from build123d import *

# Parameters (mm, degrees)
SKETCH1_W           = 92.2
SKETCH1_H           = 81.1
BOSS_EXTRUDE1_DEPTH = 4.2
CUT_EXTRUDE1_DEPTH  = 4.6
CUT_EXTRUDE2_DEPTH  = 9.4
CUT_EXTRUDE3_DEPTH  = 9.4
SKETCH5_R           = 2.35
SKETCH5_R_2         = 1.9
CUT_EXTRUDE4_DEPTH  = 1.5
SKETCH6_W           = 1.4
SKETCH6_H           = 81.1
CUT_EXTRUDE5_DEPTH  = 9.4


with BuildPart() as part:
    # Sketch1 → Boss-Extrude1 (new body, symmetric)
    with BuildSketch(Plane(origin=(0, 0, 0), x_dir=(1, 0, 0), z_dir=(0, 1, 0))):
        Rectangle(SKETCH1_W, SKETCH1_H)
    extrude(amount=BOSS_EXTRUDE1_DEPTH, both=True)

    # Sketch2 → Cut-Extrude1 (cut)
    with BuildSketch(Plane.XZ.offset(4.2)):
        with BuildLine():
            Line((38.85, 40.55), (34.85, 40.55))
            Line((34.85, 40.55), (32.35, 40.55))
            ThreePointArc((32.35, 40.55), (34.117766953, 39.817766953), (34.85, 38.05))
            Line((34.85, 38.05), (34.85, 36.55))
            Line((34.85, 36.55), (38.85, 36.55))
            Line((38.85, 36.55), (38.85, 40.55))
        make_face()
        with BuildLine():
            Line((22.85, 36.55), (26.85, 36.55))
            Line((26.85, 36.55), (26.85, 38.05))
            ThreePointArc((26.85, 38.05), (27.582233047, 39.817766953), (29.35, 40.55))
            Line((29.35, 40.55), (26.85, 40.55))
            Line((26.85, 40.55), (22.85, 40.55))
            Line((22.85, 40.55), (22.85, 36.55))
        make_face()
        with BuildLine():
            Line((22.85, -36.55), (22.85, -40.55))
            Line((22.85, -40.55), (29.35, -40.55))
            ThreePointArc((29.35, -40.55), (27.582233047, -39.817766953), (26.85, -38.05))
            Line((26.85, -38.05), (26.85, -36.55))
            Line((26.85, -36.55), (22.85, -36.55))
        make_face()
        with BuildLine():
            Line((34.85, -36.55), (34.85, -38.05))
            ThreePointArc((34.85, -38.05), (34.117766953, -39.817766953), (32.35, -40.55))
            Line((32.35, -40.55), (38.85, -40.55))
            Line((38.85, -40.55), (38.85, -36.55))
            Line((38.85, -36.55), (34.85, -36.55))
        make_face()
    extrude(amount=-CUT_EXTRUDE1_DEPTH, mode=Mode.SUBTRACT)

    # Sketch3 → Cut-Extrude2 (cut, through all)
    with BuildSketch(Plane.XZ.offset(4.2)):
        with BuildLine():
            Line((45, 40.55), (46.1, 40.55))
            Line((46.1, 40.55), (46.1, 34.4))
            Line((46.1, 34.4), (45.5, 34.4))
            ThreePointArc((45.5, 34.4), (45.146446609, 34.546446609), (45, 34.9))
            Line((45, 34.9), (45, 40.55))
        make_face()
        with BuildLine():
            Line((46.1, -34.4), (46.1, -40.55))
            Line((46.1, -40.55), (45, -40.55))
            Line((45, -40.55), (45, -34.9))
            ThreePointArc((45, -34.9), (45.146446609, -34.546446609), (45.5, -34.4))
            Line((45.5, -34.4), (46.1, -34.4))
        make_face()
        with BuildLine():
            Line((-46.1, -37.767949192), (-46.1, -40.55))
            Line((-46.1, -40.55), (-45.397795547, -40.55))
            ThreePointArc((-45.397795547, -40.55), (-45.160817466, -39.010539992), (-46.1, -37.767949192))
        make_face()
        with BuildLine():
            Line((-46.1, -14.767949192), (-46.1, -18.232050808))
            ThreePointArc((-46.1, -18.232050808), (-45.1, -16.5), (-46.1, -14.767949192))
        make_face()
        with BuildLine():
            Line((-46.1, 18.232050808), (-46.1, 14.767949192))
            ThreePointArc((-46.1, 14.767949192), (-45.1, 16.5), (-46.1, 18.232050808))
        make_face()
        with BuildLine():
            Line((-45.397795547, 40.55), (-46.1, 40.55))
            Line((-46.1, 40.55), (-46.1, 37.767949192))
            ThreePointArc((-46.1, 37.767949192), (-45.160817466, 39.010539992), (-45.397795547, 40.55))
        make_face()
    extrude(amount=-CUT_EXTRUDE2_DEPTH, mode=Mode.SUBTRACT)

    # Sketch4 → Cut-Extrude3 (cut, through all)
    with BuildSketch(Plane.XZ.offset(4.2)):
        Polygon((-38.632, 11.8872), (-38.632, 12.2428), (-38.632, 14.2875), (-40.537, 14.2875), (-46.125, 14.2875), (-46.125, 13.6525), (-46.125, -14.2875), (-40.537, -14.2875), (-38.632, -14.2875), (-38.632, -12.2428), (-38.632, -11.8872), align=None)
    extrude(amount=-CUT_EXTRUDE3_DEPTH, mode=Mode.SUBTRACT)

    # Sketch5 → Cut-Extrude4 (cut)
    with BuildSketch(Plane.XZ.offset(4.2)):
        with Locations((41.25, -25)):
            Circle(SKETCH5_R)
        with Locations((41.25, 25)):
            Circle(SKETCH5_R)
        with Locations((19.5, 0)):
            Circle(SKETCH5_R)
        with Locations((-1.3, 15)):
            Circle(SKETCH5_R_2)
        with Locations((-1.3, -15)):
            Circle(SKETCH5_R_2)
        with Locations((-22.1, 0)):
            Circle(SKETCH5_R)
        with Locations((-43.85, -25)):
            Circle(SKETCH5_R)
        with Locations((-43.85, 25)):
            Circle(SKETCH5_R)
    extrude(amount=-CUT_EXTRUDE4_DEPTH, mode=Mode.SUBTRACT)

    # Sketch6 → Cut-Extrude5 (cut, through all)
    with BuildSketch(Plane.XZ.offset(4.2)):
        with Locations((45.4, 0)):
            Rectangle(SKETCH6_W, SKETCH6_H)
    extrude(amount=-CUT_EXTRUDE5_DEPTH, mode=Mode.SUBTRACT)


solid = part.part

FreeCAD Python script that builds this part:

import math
import FreeCAD as App
import Part
import Sketcher

V = App.Vector

doc = App.newDocument("Part")
body = doc.addObject("PartDesign::Body", "Body")

# Sketch on XZ plane
sketch1 = body.newObject("Sketcher::SketchObject", "Sketch")
sketch1.AttachmentSupport = (doc.getObject("XZ_Plane"), [""])
sketch1.MapMode = "FlatFace"
sketch1.addGeometry(Part.LineSegment(V(-46.1, -40.55, 0), V(-46.1, 40.55, 0)), False)
sketch1.addGeometry(Part.LineSegment(V(-46.1, 40.55, 0), V(46.1, 40.55, 0)), False)
sketch1.addGeometry(Part.LineSegment(V(46.1, 40.55, 0), V(46.1, -40.55, 0)), False)
sketch1.addGeometry(Part.LineSegment(V(46.1, -40.55, 0), V(-46.1, -40.55, 0)), False)
sketch1.addConstraint(Sketcher.Constraint("Coincident", 0, 2, 1, 1))
sketch1.addConstraint(Sketcher.Constraint("Coincident", 1, 2, 2, 1))
sketch1.addConstraint(Sketcher.Constraint("Coincident", 2, 2, 3, 1))
sketch1.addConstraint(Sketcher.Constraint("Coincident", 3, 2, 0, 1))
sketch1.addConstraint(Sketcher.Constraint("Vertical", 0))
sketch1.addConstraint(Sketcher.Constraint("Horizontal", 1))
sketch1.addConstraint(Sketcher.Constraint("Vertical", 2))
sketch1.addConstraint(Sketcher.Constraint("Horizontal", 3))
sketch1.addConstraint(Sketcher.Constraint("Symmetric", 0, 2, 2, 2, -1, 1))
sketch1.addConstraint(Sketcher.Constraint("DistanceX", 1, 1, 1, 2, 92.2))
sketch1.addConstraint(Sketcher.Constraint("DistanceY", 0, 1, 0, 2, 81.1))
pad1 = body.newObject("PartDesign::Pad", "Pad")
pad1.Profile = sketch1
pad1.Length = 8.4
pad1.Midplane = True

# Sketch on XZ plane
sketch2 = body.newObject("Sketcher::SketchObject", "Sketch001")
sketch2.AttachmentSupport = (doc.getObject("XZ_Plane"), [""])
sketch2.MapMode = "FlatFace"
sketch2.AttachmentOffset = App.Placement(V(0, 0, 4.2), App.Rotation())
sketch2.addGeometry(Part.LineSegment(V(38.85, 40.55, 0), V(32.35, 40.55, 0)), False)
sketch2.addGeometry(Part.ArcOfCircle(Part.Circle(V(32.35, 38.05, 0), V(0, 0, 1), 2.5), math.radians(0), math.radians(90)), False)
sketch2.addGeometry(Part.LineSegment(V(34.85, 38.05, 0), V(34.85, 36.55, 0)), False)
sketch2.addGeometry(Part.LineSegment(V(34.85, 36.55, 0), V(38.85, 36.55, 0)), False)
sketch2.addGeometry(Part.LineSegment(V(38.85, 36.55, 0), V(38.85, 40.55, 0)), False)
sketch2.addGeometry(Part.LineSegment(V(22.85, 36.55, 0), V(26.85, 36.55, 0)), False)
sketch2.addGeometry(Part.LineSegment(V(26.85, 36.55, 0), V(26.85, 38.05, 0)), False)
sketch2.addGeometry(Part.ArcOfCircle(Part.Circle(V(29.35, 38.05, 0), V(0, 0, 1), 2.5), math.radians(90), math.radians(180)), False)
sketch2.addGeometry(Part.LineSegment(V(29.35, 40.55, 0), V(22.85, 40.55, 0)), False)
sketch2.addGeometry(Part.LineSegment(V(22.85, 40.55, 0), V(22.85, 36.55, 0)), False)
sketch2.addGeometry(Part.LineSegment(V(22.85, -36.55, 0), V(22.85, -40.55, 0)), False)
sketch2.addGeometry(Part.LineSegment(V(22.85, -40.55, 0), V(29.35, -40.55, 0)), False)
sketch2.addGeometry(Part.ArcOfCircle(Part.Circle(V(29.35, -38.05, 0), V(0, 0, 1), 2.5), math.radians(180), math.radians(270)), False)
sketch2.addGeometry(Part.LineSegment(V(26.85, -38.05, 0), V(26.85, -36.55, 0)), False)
sketch2.addGeometry(Part.LineSegment(V(26.85, -36.55, 0), V(22.85, -36.55, 0)), False)
sketch2.addGeometry(Part.LineSegment(V(34.85, -36.55, 0), V(34.85, -38.05, 0)), False)
sketch2.addGeometry(Part.ArcOfCircle(Part.Circle(V(32.35, -38.05, 0), V(0, 0, 1), 2.5), math.radians(-90), math.radians(0)), False)
sketch2.addGeometry(Part.LineSegment(V(32.35, -40.55, 0), V(38.85, -40.55, 0)), False)
sketch2.addGeometry(Part.LineSegment(V(38.85, -40.55, 0), V(38.85, -36.55, 0)), False)
sketch2.addGeometry(Part.LineSegment(V(38.85, -36.55, 0), V(34.85, -36.55, 0)), False)
sketch2.addConstraint(Sketcher.Constraint("Tangent", 0, 2, 1, 2))
sketch2.addConstraint(Sketcher.Constraint("Tangent", 1, 1, 2, 1))
sketch2.addConstraint(Sketcher.Constraint("Coincident", 2, 2, 3, 1))
sketch2.addConstraint(Sketcher.Constraint("Coincident", 3, 2, 4, 1))
sketch2.addConstraint(Sketcher.Constraint("Coincident", 4, 2, 0, 1))
sketch2.addConstraint(Sketcher.Constraint("Coincident", 5, 2, 6, 1))
sketch2.addConstraint(Sketcher.Constraint("Tangent", 6, 2, 7, 2))
sketch2.addConstraint(Sketcher.Constraint("Tangent", 7, 1, 8, 1))
sketch2.addConstraint(Sketcher.Constraint("Coincident", 8, 2, 9, 1))
sketch2.addConstraint(Sketcher.Constraint("Coincident", 9, 2, 5, 1))
sketch2.addConstraint(Sketcher.Constraint("Coincident", 10, 2, 11, 1))
sketch2.addConstraint(Sketcher.Constraint("Tangent", 11, 2, 12, 2))
sketch2.addConstraint(Sketcher.Constraint("Tangent", 12, 1, 13, 1))
sketch2.addConstraint(Sketcher.Constraint("Coincident", 13, 2, 14, 1))
sketch2.addConstraint(Sketcher.Constraint("Coincident", 14, 2, 10, 1))
sketch2.addConstraint(Sketcher.Constraint("Tangent", 15, 2, 16, 2))
sketch2.addConstraint(Sketcher.Constraint("Tangent", 16, 1, 17, 1))
sketch2.addConstraint(Sketcher.Constraint("Coincident", 17, 2, 18, 1))
sketch2.addConstraint(Sketcher.Constraint("Coincident", 18, 2, 19, 1))
sketch2.addConstraint(Sketcher.Constraint("Coincident", 19, 2, 15, 1))
sketch2.addConstraint(Sketcher.Constraint("Horizontal", 0))
sketch2.addConstraint(Sketcher.Constraint("Vertical", 2))
sketch2.addConstraint(Sketcher.Constraint("Horizontal", 3))
sketch2.addConstraint(Sketcher.Constraint("Vertical", 4))
sketch2.addConstraint(Sketcher.Constraint("Horizontal", 5))
sketch2.addConstraint(Sketcher.Constraint("Vertical", 6))
sketch2.addConstraint(Sketcher.Constraint("Horizontal", 8))
sketch2.addConstraint(Sketcher.Constraint("Vertical", 9))
sketch2.addConstraint(Sketcher.Constraint("Vertical", 10))
sketch2.addConstraint(Sketcher.Constraint("Horizontal", 11))
sketch2.addConstraint(Sketcher.Constraint("Vertical", 13))
sketch2.addConstraint(Sketcher.Constraint("Horizontal", 14))
sketch2.addConstraint(Sketcher.Constraint("Vertical", 15))
sketch2.addConstraint(Sketcher.Constraint("Horizontal", 17))
sketch2.addConstraint(Sketcher.Constraint("Vertical", 18))
sketch2.addConstraint(Sketcher.Constraint("Horizontal", 19))
sketch2.addConstraint(Sketcher.Constraint("Equal", 1, 7))
sketch2.addConstraint(Sketcher.Constraint("Equal", 7, 12))
sketch2.addConstraint(Sketcher.Constraint("Equal", 12, 16))
sketch2.addConstraint(Sketcher.Constraint("Symmetric", 7, 3, 12, 3, -1))
sketch2.addConstraint(Sketcher.Constraint("Symmetric", 1, 3, 16, 3, -1))
sketch2.addConstraint(Sketcher.Constraint("Symmetric", 9, 2, 14, 2, -1))
sketch2.addConstraint(Sketcher.Constraint("Symmetric", 3, 2, 18, 2, -1))
sketch2.addConstraint(Sketcher.Constraint("Horizontal", 1, 3, 7, 3))
sketch2.addConstraint(Sketcher.Constraint("Horizontal", 3, 2, 5, 2))
sketch2.addConstraint(Sketcher.Constraint("Equal", 3, 5))
sketch2.addConstraint(Sketcher.Constraint("Equal", 19, 4))
sketch2.addConstraint(Sketcher.Constraint("Radius", 1, 2.5))
sketch2.addConstraint(Sketcher.Constraint("DistanceX", 3, 1, 3, 2, 4.0))
sketch2.addConstraint(Sketcher.Constraint("DistanceX", 7, 3, 1, 3, 3.0))
sketch2.addConstraint(Sketcher.Constraint("DistanceY", 12, 3, 7, 3, 76.1))
sketch2.addConstraint(Sketcher.Constraint("DistanceX", -1, 1, 1, 3, 32.35))
pocket1 = body.newObject("PartDesign::Pocket", "Pocket")
pocket1.Profile = sketch2
pocket1.Length = 4.6

# Sketch on XZ plane
sketch3 = body.newObject("Sketcher::SketchObject", "Sketch002")
sketch3.AttachmentSupport = (doc.getObject("XZ_Plane"), [""])
sketch3.MapMode = "FlatFace"
sketch3.AttachmentOffset = App.Placement(V(0, 0, 4.2), App.Rotation())
sketch3.addGeometry(Part.LineSegment(V(46.1, 40.55, 0), V(45, 40.55, 0)), False)
sketch3.addGeometry(Part.LineSegment(V(45, 40.55, 0), V(45, 34.9, 0)), False)
sketch3.addGeometry(Part.ArcOfCircle(Part.Circle(V(45.5, 34.9, 0), V(0, 0, 1), 0.5), math.radians(180), math.radians(270)), False)
sketch3.addGeometry(Part.LineSegment(V(45.5, 34.4, 0), V(46.1, 34.4, 0)), False)
sketch3.addGeometry(Part.LineSegment(V(46.1, 34.4, 0), V(46.1, 40.55, 0)), False)
sketch3.addGeometry(Part.LineSegment(V(46.1, -40.55, 0), V(46.1, -34.4, 0)), False)
sketch3.addGeometry(Part.LineSegment(V(46.1, -34.4, 0), V(45.5, -34.4, 0)), False)
sketch3.addGeometry(Part.ArcOfCircle(Part.Circle(V(45.5, -34.9, 0), V(0, 0, 1), 0.5), math.radians(90), math.radians(180)), False)
sketch3.addGeometry(Part.LineSegment(V(45, -34.9, 0), V(45, -40.55, 0)), False)
sketch3.addGeometry(Part.LineSegment(V(45, -40.55, 0), V(46.1, -40.55, 0)), False)
sketch3.addGeometry(Part.LineSegment(V(-46.1, -37.767949, 0), V(-46.1, -40.55, 0)), False)
sketch3.addGeometry(Part.LineSegment(V(-46.1, -40.55, 0), V(-45.397796, -40.55, 0)), False)
sketch3.addGeometry(Part.ArcOfCircle(Part.Circle(V(-47.1, -39.5, 0), V(0, 0, 1), 2), math.radians(-31.668243), math.radians(60)), False)
sketch3.addGeometry(Part.LineSegment(V(-46.1, -14.767949, 0), V(-46.1, -18.232051, 0)), False)
sketch3.addGeometry(Part.ArcOfCircle(Part.Circle(V(-47.1, -16.5, 0), V(0, 0, 1), 2), math.radians(-60), math.radians(60)), False)
sketch3.addGeometry(Part.LineSegment(V(-46.1, 18.232051, 0), V(-46.1, 14.767949, 0)), False)
sketch3.addGeometry(Part.ArcOfCircle(Part.Circle(V(-47.1, 16.5, 0), V(0, 0, 1), 2), math.radians(-60), math.radians(60)), False)
sketch3.addGeometry(Part.LineSegment(V(-45.397796, 40.55, 0), V(-46.1, 40.55, 0)), False)
sketch3.addGeometry(Part.LineSegment(V(-46.1, 40.55, 0), V(-46.1, 37.767949, 0)), False)
sketch3.addGeometry(Part.ArcOfCircle(Part.Circle(V(-47.1, 39.5, 0), V(0, 0, 1), 2), math.radians(-60), math.radians(31.668243)), False)
sketch3.addConstraint(Sketcher.Constraint("Coincident", 0, 2, 1, 1))
sketch3.addConstraint(Sketcher.Constraint("Tangent", 1, 2, 2, 1))
sketch3.addConstraint(Sketcher.Constraint("Tangent", 2, 2, 3, 1))
sketch3.addConstraint(Sketcher.Constraint("Coincident", 3, 2, 4, 1))
sketch3.addConstraint(Sketcher.Constraint("Coincident", 4, 2, 0, 1))
sketch3.addConstraint(Sketcher.Constraint("Coincident", 5, 2, 6, 1))
sketch3.addConstraint(Sketcher.Constraint("Tangent", 6, 2, 7, 1))
sketch3.addConstraint(Sketcher.Constraint("Tangent", 7, 2, 8, 1))
sketch3.addConstraint(Sketcher.Constraint("Coincident", 8, 2, 9, 1))
sketch3.addConstraint(Sketcher.Constraint("Coincident", 9, 2, 5, 1))
sketch3.addConstraint(Sketcher.Constraint("Coincident", 10, 2, 11, 1))
sketch3.addConstraint(Sketcher.Constraint("Coincident", 11, 2, 12, 1))
sketch3.addConstraint(Sketcher.Constraint("Coincident", 12, 2, 10, 1))
sketch3.addConstraint(Sketcher.Constraint("Coincident", 13, 1, 14, 2))
sketch3.addConstraint(Sketcher.Constraint("Coincident", 14, 1, 13, 2))
sketch3.addConstraint(Sketcher.Constraint("Coincident", 15, 1, 16, 2))
sketch3.addConstraint(Sketcher.Constraint("Coincident", 16, 1, 15, 2))
sketch3.addConstraint(Sketcher.Constraint("Coincident", 17, 2, 18, 1))
sketch3.addConstraint(Sketcher.Constraint("Coincident", 18, 2, 19, 1))
sketch3.addConstraint(Sketcher.Constraint("Coincident", 19, 2, 17, 1))
sketch3.addConstraint(Sketcher.Constraint("Horizontal", 0))
sketch3.addConstraint(Sketcher.Constraint("Vertical", 1))
sketch3.addConstraint(Sketcher.Constraint("Horizontal", 3))
sketch3.addConstraint(Sketcher.Constraint("Vertical", 4))
sketch3.addConstraint(Sketcher.Constraint("Vertical", 5))
sketch3.addConstraint(Sketcher.Constraint("Horizontal", 6))
sketch3.addConstraint(Sketcher.Constraint("Vertical", 8))
sketch3.addConstraint(Sketcher.Constraint("Horizontal", 9))
sketch3.addConstraint(Sketcher.Constraint("Vertical", 10))
sketch3.addConstraint(Sketcher.Constraint("Horizontal", 11))
sketch3.addConstraint(Sketcher.Constraint("Vertical", 13))
sketch3.addConstraint(Sketcher.Constraint("Vertical", 15))
sketch3.addConstraint(Sketcher.Constraint("Horizontal", 17))
sketch3.addConstraint(Sketcher.Constraint("Vertical", 18))
sketch3.addConstraint(Sketcher.Constraint("Equal", 2, 7))
sketch3.addConstraint(Sketcher.Constraint("Equal", 12, 14))
sketch3.addConstraint(Sketcher.Constraint("Equal", 14, 16))
sketch3.addConstraint(Sketcher.Constraint("Equal", 16, 19))
sketch3.addConstraint(Sketcher.Constraint("Symmetric", 4, 2, 10, 2, -1, 1))
sketch3.addConstraint(Sketcher.Constraint("Symmetric", 9, 2, 17, 2, -1, 1))
sketch3.addConstraint(Sketcher.Constraint("Symmetric", 9, 2, 10, 2, -2))
sketch3.addConstraint(Sketcher.Constraint("Symmetric", 2, 3, 7, 3, -1))
sketch3.addConstraint(Sketcher.Constraint("Symmetric", 14, 3, 16, 3, -1))
sketch3.addConstraint(Sketcher.Constraint("Symmetric", 12, 3, 19, 3, -1))
sketch3.addConstraint(Sketcher.Constraint("Vertical", 12, 3, 14, 3))
sketch3.addConstraint(Sketcher.Constraint("Vertical", 12, 2, 13, 1))
sketch3.addConstraint(Sketcher.Constraint("Vertical", 14, 1, 15, 1))
sketch3.addConstraint(Sketcher.Constraint("Radius", 12, 2.0))
sketch3.addConstraint(Sketcher.Constraint("Radius", 2, 0.5))
sketch3.addConstraint(Sketcher.Constraint("DistanceX", 0, 2, 0, 1, 1.1))
sketch3.addConstraint(Sketcher.Constraint("DistanceX", -1, 1, 0, 2, 45.0))
sketch3.addConstraint(Sketcher.Constraint("DistanceY", 12, 3, 14, 3, 23.0))
sketch3.addConstraint(Sketcher.Constraint("DistanceY", 14, 3, 16, 3, 33.0))
sketch3.addConstraint(Sketcher.Constraint("DistanceX", 12, 3, 10, 2, 1.0))
sketch3.addConstraint(Sketcher.Constraint("DistanceY", 1, 2, 1, 1, 5.65))
sketch3.addConstraint(Sketcher.Constraint("DistanceY", -1, 1, 2, 3, 34.9))
pocket2 = body.newObject("PartDesign::Pocket", "Pocket001")
pocket2.Profile = sketch3
pocket2.Type = "ThroughAll"

# Sketch on XZ plane
sketch4 = body.newObject("Sketcher::SketchObject", "Sketch003")
sketch4.AttachmentSupport = (doc.getObject("XZ_Plane"), [""])
sketch4.MapMode = "FlatFace"
sketch4.AttachmentOffset = App.Placement(V(0, 0, 4.2), App.Rotation())
sketch4.addGeometry(Part.LineSegment(V(-38.632, 14.2875, 0), V(-46.125, 14.2875, 0)), False)
sketch4.addGeometry(Part.LineSegment(V(-46.125, 14.2875, 0), V(-46.125, -14.2875, 0)), False)
sketch4.addGeometry(Part.LineSegment(V(-46.125, -14.2875, 0), V(-38.632, -14.2875, 0)), False)
sketch4.addGeometry(Part.LineSegment(V(-38.632, -14.2875, 0), V(-38.632, 14.2875, 0)), False)
sketch4.addConstraint(Sketcher.Constraint("Coincident", 0, 2, 1, 1))
sketch4.addConstraint(Sketcher.Constraint("Coincident", 1, 2, 2, 1))
sketch4.addConstraint(Sketcher.Constraint("Coincident", 2, 2, 3, 1))
sketch4.addConstraint(Sketcher.Constraint("Coincident", 3, 2, 0, 1))
sketch4.addConstraint(Sketcher.Constraint("Horizontal", 0))
sketch4.addConstraint(Sketcher.Constraint("Vertical", 1))
sketch4.addConstraint(Sketcher.Constraint("Horizontal", 2))
sketch4.addConstraint(Sketcher.Constraint("Vertical", 3))
sketch4.addConstraint(Sketcher.Constraint("DistanceX", 0, 2, 0, 1, 7.493))
sketch4.addConstraint(Sketcher.Constraint("DistanceY", 1, 2, 1, 1, 28.575))
sketch4.addConstraint(Sketcher.Constraint("DistanceX", 0, 2, -1, 1, 46.125))
sketch4.addConstraint(Sketcher.Constraint("DistanceY", -1, 1, 0, 2, 14.2875))
pocket3 = body.newObject("PartDesign::Pocket", "Pocket002")
pocket3.Profile = sketch4
pocket3.Type = "ThroughAll"

# Sketch on XZ plane
sketch5 = body.newObject("Sketcher::SketchObject", "Sketch004")
sketch5.AttachmentSupport = (doc.getObject("XZ_Plane"), [""])
sketch5.MapMode = "FlatFace"
sketch5.AttachmentOffset = App.Placement(V(0, 0, 4.2), App.Rotation())
sketch5.addGeometry(Part.Circle(V(41.25, -25, 0), V(0, 0, 1), 2.35), False)
sketch5.addGeometry(Part.Circle(V(41.25, 25, 0), V(0, 0, 1), 2.35), False)
sketch5.addGeometry(Part.Circle(V(19.5, 0, 0), V(0, 0, 1), 2.35), False)
sketch5.addGeometry(Part.Circle(V(-1.3, 15, 0), V(0, 0, 1), 1.9), False)
sketch5.addGeometry(Part.Circle(V(-1.3, -15, 0), V(0, 0, 1), 1.9), False)
sketch5.addGeometry(Part.Circle(V(-22.1, 0, 0), V(0, 0, 1), 2.35), False)
sketch5.addGeometry(Part.Circle(V(-43.85, -25, 0), V(0, 0, 1), 2.35), False)
sketch5.addGeometry(Part.Circle(V(-43.85, 25, 0), V(0, 0, 1), 2.35), False)
sketch5.addConstraint(Sketcher.Constraint("Equal", 0, 1))
sketch5.addConstraint(Sketcher.Constraint("Equal", 1, 2))
sketch5.addConstraint(Sketcher.Constraint("Equal", 3, 4))
sketch5.addConstraint(Sketcher.Constraint("Equal", 2, 5))
sketch5.addConstraint(Sketcher.Constraint("Equal", 5, 6))
sketch5.addConstraint(Sketcher.Constraint("Equal", 6, 7))
sketch5.addConstraint(Sketcher.Constraint("Symmetric", 0, 3, 1, 3, -1))
sketch5.addConstraint(Sketcher.Constraint("Symmetric", 3, 3, 4, 3, -1))
sketch5.addConstraint(Sketcher.Constraint("Symmetric", 6, 3, 7, 3, -1))
sketch5.addConstraint(Sketcher.Constraint("PointOnObject", 2, 3, -1))
sketch5.addConstraint(Sketcher.Constraint("PointOnObject", 5, 3, -1))
sketch5.addConstraint(Sketcher.Constraint("Horizontal", 0, 3, 6, 3))
sketch5.addConstraint(Sketcher.Constraint("Diameter", 0, 4.7))
sketch5.addConstraint(Sketcher.Constraint("Diameter", 3, 3.8))
sketch5.addConstraint(Sketcher.Constraint("DistanceY", 0, 3, -1, 1, 25.0))
sketch5.addConstraint(Sketcher.Constraint("DistanceY", -1, 1, 3, 3, 15.0))
sketch5.addConstraint(Sketcher.Constraint("DistanceX", -1, 1, 2, 3, 19.5))
sketch5.addConstraint(Sketcher.Constraint("DistanceX", 3, 3, -1, 1, 1.3))
sketch5.addConstraint(Sketcher.Constraint("DistanceX", 5, 3, -1, 1, 22.1))
sketch5.addConstraint(Sketcher.Constraint("DistanceX", 6, 3, 0, 3, 85.1))
sketch5.addConstraint(Sketcher.Constraint("DistanceX", -1, 1, 0, 3, 41.25))
pocket4 = body.newObject("PartDesign::Pocket", "Pocket003")
pocket4.Profile = sketch5
pocket4.Length = 1.5

# Sketch on XZ plane
sketch6 = body.newObject("Sketcher::SketchObject", "Sketch005")
sketch6.AttachmentSupport = (doc.getObject("XZ_Plane"), [""])
sketch6.MapMode = "FlatFace"
sketch6.AttachmentOffset = App.Placement(V(0, 0, 4.2), App.Rotation())
sketch6.addGeometry(Part.LineSegment(V(44.7, 40.55, 0), V(44.7, -40.55, 0)), False)
sketch6.addGeometry(Part.LineSegment(V(44.7, -40.55, 0), V(46.1, -40.55, 0)), False)
sketch6.addGeometry(Part.LineSegment(V(46.1, -40.55, 0), V(46.1, 40.55, 0)), False)
sketch6.addGeometry(Part.LineSegment(V(46.1, 40.55, 0), V(44.7, 40.55, 0)), False)
sketch6.addConstraint(Sketcher.Constraint("Coincident", 0, 2, 1, 1))
sketch6.addConstraint(Sketcher.Constraint("Coincident", 1, 2, 2, 1))
sketch6.addConstraint(Sketcher.Constraint("Coincident", 2, 2, 3, 1))
sketch6.addConstraint(Sketcher.Constraint("Coincident", 3, 2, 0, 1))
sketch6.addConstraint(Sketcher.Constraint("Vertical", 0))
sketch6.addConstraint(Sketcher.Constraint("Horizontal", 1))
sketch6.addConstraint(Sketcher.Constraint("Vertical", 2))
sketch6.addConstraint(Sketcher.Constraint("Horizontal", 3))
sketch6.addConstraint(Sketcher.Constraint("DistanceX", 1, 1, 1, 2, 1.4))
sketch6.addConstraint(Sketcher.Constraint("DistanceY", 0, 2, 0, 1, 81.1))
sketch6.addConstraint(Sketcher.Constraint("DistanceX", -1, 1, 0, 2, 44.7))
sketch6.addConstraint(Sketcher.Constraint("DistanceY", 0, 2, -1, 1, 40.55))
pocket5 = body.newObject("PartDesign::Pocket", "Pocket004")
pocket5.Profile = sketch6
pocket5.Type = "ThroughAll"

doc.recompute()
